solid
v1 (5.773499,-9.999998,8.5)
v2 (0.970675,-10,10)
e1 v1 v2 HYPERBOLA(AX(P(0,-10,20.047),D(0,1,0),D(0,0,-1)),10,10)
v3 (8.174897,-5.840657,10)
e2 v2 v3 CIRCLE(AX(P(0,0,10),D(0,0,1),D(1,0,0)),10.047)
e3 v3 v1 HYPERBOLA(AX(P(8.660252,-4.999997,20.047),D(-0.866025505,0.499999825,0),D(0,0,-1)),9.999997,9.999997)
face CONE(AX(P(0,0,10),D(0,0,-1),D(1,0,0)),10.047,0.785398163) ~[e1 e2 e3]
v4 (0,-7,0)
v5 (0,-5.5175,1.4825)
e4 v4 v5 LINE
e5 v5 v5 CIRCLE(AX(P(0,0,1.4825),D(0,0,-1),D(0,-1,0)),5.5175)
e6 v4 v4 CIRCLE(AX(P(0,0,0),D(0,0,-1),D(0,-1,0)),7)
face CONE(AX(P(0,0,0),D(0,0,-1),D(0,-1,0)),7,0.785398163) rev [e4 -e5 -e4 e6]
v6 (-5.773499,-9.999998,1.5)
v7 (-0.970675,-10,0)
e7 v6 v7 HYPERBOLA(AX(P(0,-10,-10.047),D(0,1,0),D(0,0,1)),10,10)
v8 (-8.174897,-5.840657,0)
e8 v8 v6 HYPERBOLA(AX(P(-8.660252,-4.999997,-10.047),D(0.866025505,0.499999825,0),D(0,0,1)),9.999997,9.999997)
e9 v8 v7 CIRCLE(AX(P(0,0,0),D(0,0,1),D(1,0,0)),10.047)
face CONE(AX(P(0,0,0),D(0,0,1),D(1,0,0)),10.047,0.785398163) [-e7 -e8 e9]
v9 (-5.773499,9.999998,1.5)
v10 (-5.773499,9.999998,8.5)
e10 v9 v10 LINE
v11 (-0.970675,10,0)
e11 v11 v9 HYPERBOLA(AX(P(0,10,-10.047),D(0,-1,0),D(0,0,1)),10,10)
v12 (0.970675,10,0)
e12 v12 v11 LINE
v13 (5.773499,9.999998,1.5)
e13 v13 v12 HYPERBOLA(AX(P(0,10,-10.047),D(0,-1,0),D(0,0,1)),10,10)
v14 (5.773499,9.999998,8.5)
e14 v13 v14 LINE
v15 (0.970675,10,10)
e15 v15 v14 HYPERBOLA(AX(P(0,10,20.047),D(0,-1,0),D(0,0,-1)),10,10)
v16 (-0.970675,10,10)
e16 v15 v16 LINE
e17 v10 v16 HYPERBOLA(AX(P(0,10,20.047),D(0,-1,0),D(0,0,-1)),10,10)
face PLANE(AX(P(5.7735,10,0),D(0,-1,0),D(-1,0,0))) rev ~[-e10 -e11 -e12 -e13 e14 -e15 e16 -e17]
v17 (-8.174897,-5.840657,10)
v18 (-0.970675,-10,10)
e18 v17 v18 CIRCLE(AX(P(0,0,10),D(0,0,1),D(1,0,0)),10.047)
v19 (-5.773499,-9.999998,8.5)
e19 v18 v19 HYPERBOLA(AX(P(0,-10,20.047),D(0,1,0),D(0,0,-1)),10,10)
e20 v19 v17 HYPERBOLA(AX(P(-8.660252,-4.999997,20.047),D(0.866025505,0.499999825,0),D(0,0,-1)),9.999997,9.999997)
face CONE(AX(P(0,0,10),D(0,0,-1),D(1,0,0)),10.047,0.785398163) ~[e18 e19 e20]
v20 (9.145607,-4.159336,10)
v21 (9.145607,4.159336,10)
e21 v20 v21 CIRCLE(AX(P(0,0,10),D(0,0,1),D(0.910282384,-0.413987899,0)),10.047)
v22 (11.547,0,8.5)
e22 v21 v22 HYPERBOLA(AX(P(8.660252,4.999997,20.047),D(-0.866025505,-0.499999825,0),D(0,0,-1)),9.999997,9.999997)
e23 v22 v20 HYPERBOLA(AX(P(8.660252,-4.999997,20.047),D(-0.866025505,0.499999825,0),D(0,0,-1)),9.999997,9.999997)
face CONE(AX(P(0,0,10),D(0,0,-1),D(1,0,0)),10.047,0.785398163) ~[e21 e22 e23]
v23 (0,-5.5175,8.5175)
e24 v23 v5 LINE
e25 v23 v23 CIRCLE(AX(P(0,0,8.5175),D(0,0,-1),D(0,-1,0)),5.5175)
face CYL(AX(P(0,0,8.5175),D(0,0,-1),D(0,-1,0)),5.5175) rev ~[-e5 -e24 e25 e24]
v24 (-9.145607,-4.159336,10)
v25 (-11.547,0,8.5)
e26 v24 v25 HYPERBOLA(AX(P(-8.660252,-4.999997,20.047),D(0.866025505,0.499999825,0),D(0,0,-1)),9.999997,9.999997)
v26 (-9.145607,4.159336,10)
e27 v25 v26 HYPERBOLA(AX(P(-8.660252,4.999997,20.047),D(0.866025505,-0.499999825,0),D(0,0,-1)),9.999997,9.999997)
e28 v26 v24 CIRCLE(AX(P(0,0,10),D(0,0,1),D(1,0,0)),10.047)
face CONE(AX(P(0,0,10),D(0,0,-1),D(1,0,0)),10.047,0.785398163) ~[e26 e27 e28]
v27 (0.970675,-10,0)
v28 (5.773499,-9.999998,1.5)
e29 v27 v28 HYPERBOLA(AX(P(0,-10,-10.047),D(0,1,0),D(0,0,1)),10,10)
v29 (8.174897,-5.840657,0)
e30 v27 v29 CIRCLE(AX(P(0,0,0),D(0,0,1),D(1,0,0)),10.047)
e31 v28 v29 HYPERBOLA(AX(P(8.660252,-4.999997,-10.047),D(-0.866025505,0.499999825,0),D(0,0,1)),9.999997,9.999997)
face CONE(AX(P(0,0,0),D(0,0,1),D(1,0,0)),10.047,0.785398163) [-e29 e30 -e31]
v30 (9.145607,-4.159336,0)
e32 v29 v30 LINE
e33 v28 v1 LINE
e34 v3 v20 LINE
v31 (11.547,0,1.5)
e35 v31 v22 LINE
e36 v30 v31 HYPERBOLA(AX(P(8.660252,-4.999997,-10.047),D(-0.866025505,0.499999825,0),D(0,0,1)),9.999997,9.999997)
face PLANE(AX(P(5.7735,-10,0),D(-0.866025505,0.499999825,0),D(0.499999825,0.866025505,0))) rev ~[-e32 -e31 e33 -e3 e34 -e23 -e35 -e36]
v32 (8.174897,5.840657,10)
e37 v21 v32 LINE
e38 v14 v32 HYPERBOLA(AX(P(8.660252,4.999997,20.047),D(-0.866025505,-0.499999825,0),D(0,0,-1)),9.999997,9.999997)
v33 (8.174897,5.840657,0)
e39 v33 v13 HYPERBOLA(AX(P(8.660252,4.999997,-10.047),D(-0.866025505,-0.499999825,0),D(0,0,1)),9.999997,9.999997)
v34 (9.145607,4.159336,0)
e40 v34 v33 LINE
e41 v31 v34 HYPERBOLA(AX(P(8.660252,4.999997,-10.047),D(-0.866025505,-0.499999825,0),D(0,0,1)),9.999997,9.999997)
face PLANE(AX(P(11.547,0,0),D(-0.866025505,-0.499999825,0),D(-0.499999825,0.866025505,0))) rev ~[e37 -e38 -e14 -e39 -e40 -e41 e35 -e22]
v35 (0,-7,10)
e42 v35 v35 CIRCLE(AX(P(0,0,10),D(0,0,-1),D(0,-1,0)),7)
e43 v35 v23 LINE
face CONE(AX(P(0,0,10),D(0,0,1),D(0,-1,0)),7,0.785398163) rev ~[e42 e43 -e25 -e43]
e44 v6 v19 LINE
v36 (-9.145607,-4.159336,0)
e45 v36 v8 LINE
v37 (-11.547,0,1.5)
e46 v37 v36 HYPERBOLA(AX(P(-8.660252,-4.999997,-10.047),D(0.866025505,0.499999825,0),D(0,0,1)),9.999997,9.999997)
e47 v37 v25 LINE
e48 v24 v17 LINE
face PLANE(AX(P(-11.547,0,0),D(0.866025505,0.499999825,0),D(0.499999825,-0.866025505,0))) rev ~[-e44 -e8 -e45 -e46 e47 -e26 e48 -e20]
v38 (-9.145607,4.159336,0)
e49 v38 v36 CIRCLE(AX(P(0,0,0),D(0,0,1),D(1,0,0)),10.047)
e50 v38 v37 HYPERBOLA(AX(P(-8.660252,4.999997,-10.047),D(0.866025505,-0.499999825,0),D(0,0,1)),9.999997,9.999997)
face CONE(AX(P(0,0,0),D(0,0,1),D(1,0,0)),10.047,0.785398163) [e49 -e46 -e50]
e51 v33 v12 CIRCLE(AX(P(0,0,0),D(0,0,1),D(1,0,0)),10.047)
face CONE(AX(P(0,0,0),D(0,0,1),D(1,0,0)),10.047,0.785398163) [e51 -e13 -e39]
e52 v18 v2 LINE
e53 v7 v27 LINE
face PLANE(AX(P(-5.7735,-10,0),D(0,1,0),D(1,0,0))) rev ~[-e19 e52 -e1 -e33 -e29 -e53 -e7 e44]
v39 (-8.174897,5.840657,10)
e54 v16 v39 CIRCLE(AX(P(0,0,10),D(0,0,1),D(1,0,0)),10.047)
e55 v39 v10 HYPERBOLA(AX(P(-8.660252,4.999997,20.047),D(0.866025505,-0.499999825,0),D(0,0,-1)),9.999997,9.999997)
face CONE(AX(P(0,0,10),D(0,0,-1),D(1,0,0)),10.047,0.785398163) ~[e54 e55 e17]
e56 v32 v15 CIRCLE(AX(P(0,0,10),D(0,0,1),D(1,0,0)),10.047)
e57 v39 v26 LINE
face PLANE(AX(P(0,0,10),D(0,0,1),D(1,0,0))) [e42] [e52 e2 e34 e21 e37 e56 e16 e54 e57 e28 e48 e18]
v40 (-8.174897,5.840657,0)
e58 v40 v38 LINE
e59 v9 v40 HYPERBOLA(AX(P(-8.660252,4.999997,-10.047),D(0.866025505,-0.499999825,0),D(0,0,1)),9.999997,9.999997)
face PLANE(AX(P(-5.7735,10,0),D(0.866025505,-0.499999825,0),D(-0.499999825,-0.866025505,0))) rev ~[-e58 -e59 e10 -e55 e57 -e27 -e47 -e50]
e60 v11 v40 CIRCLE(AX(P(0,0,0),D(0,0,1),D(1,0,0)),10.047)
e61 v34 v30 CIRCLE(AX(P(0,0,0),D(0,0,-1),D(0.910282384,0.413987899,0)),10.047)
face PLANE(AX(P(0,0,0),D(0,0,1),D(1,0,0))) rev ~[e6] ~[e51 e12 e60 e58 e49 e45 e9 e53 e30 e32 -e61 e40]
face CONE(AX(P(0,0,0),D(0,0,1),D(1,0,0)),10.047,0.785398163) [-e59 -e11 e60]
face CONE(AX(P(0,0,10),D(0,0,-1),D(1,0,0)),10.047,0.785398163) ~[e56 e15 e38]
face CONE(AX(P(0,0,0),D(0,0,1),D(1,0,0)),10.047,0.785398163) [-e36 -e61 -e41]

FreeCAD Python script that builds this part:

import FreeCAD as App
import Part
import Sketcher

V = App.Vector
Q = App.Units.Quantity


def add_polygon(sketch, points):
    """Adds a closed chain of lines whose ends are joined by coincident constraints."""
    first, n = sketch.GeometryCount, len(points)
    for a, b in zip(points, points[1:] + points[:1]):
        sketch.addGeometry(Part.LineSegment(App.Vector(*a, 0), App.Vector(*b, 0)), False)
    for i in range(n):
        sketch.addConstraint(Sketcher.Constraint("Coincident", first + i, 2, first + (i + 1) % n, 1))

doc = App.newDocument("Part")
body = doc.addObject("PartDesign::Body", "Body")

# Sketch on XY plane
sketch1 = doc.addObject("Sketcher::SketchObject", "Sketch")
body.addObject(sketch1)
sketch1.AttachmentSupport = (doc.XY_Plane, [""])
sketch1.MapMode = "FlatFace"
add_polygon(sketch1, [(11.547, 0), (5.7735, 10), (-5.7735, 10), (-11.547, 0), (-5.7735, -10), (5.7735, -10)])  # lines 0-5
sketch1.addConstraint(Sketcher.Constraint("Horizontal", 1))
sketch1.addConstraint(Sketcher.Constraint("Horizontal", 4))
sketch1.addConstraint(Sketcher.Constraint("Symmetric", 0, 2, 3, 2, -1, 1))
sketch1.addConstraint(Sketcher.Constraint("Symmetric", 2, 2, 5, 2, -1, 1))
sketch1.addConstraint(Sketcher.Constraint("PointOnObject", 2, 2, -1))
sketch1.addConstraint(Sketcher.Constraint("Parallel", 2, 5))
sketch1.addConstraint(Sketcher.Constraint("Vertical", 1, 2, 3, 2))
sketch1.addConstraint(Sketcher.Constraint("DistanceY", -1, 1, 0, 2, Q("10 mm")))
sketch1.addConstraint(Sketcher.Constraint("Angle", 0, Q("120 deg")))
sketch1.addConstraint(Sketcher.Constraint("DistanceX", 1, 2, 1, 1, Q("11.547 mm")))
pad1 = doc.addObject("PartDesign::Pad", "Pad")
body.addObject(pad1)
pad1.Profile = sketch1
pad1.Length = 10

# Sketch on XZ plane
sketch2 = doc.addObject("Sketcher::SketchObject", "Sketch001")
body.addObject(sketch2)
sketch2.AttachmentSupport = (doc.XZ_Plane, [""])
sketch2.MapMode = "FlatFace"
add_polygon(sketch2, [(10.047, 10), (11.547, 10), (11.547, 8.5)])  # lines 0-2
sketch2.addConstraint(Sketcher.Constraint("Horizontal", 0))
sketch2.addConstraint(Sketcher.Constraint("Vertical", 1))
sketch2.addConstraint(Sketcher.Constraint("Equal", 0, 1))
sketch2.addConstraint(Sketcher.Constraint("DistanceX", 0, 1, 0, 2, Q("1.5 mm")))
sketch2.addConstraint(Sketcher.Constraint("DistanceY", -1, 1, 0, 2, Q("10 mm")))
sketch2.addConstraint(Sketcher.Constraint("DistanceX", -1, 1, 0, 2, Q("11.547 mm")))
groove = doc.addObject("PartDesign::Groove", "Groove")
body.addObject(groove)
groove.Profile = sketch2
groove.ReferenceAxis = (sketch2, ["V_Axis"])
groove.Angle = 360

# Sketch on XY plane
sketch3 = doc.addObject("Sketcher::SketchObject", "Sketch002")
body.addObject(sketch3)
sketch3.AttachmentSupport = (doc.XY_Plane, [""])
sketch3.MapMode = "FlatFace"
sketch3.AttachmentOffset = App.Placement(V(0, 0, 10), App.Rotation())
sketch3.addGeometry(Part.Circle(V(0, 0, 0), V(0, 0, 1), 5.5175), False)
sketch3.addConstraint(Sketcher.Constraint("Coincident", 0, 3, -1, 1))
sketch3.addConstraint(Sketcher.Constraint("Diameter", 0, Q("11.035 mm")))
doc.recompute()
hole = doc.addObject("PartDesign::Hole", "Hole")
body.addObject(hole)
hole.Profile = sketch3
hole.ThreadType = "None"
hole.Diameter = 11.035
hole.DepthType = "ThroughAll"
hole.HoleCutType = "Countersink"
hole.HoleCutDiameter = 14
hole.HoleCutCountersinkAngle = 90
doc.recompute()

datumplane = doc.addObject("PartDesign::Plane", "DatumPlane")
body.addObject(datumplane)
datumplane.AttachmentSupport = (doc.XY_Plane, [""])
datumplane.MapMode = "FlatFace"
datumplane.AttachmentOffset = App.Placement(V(0, 0, 5), App.Rotation())
mirrored = doc.addObject("PartDesign::Mirrored", "Mirrored")
body.addObject(mirrored)
mirrored.Originals = [groove, hole]
mirrored.MirrorPlane = (datumplane, [""])
body.Tip = mirrored

doc.recompute()
